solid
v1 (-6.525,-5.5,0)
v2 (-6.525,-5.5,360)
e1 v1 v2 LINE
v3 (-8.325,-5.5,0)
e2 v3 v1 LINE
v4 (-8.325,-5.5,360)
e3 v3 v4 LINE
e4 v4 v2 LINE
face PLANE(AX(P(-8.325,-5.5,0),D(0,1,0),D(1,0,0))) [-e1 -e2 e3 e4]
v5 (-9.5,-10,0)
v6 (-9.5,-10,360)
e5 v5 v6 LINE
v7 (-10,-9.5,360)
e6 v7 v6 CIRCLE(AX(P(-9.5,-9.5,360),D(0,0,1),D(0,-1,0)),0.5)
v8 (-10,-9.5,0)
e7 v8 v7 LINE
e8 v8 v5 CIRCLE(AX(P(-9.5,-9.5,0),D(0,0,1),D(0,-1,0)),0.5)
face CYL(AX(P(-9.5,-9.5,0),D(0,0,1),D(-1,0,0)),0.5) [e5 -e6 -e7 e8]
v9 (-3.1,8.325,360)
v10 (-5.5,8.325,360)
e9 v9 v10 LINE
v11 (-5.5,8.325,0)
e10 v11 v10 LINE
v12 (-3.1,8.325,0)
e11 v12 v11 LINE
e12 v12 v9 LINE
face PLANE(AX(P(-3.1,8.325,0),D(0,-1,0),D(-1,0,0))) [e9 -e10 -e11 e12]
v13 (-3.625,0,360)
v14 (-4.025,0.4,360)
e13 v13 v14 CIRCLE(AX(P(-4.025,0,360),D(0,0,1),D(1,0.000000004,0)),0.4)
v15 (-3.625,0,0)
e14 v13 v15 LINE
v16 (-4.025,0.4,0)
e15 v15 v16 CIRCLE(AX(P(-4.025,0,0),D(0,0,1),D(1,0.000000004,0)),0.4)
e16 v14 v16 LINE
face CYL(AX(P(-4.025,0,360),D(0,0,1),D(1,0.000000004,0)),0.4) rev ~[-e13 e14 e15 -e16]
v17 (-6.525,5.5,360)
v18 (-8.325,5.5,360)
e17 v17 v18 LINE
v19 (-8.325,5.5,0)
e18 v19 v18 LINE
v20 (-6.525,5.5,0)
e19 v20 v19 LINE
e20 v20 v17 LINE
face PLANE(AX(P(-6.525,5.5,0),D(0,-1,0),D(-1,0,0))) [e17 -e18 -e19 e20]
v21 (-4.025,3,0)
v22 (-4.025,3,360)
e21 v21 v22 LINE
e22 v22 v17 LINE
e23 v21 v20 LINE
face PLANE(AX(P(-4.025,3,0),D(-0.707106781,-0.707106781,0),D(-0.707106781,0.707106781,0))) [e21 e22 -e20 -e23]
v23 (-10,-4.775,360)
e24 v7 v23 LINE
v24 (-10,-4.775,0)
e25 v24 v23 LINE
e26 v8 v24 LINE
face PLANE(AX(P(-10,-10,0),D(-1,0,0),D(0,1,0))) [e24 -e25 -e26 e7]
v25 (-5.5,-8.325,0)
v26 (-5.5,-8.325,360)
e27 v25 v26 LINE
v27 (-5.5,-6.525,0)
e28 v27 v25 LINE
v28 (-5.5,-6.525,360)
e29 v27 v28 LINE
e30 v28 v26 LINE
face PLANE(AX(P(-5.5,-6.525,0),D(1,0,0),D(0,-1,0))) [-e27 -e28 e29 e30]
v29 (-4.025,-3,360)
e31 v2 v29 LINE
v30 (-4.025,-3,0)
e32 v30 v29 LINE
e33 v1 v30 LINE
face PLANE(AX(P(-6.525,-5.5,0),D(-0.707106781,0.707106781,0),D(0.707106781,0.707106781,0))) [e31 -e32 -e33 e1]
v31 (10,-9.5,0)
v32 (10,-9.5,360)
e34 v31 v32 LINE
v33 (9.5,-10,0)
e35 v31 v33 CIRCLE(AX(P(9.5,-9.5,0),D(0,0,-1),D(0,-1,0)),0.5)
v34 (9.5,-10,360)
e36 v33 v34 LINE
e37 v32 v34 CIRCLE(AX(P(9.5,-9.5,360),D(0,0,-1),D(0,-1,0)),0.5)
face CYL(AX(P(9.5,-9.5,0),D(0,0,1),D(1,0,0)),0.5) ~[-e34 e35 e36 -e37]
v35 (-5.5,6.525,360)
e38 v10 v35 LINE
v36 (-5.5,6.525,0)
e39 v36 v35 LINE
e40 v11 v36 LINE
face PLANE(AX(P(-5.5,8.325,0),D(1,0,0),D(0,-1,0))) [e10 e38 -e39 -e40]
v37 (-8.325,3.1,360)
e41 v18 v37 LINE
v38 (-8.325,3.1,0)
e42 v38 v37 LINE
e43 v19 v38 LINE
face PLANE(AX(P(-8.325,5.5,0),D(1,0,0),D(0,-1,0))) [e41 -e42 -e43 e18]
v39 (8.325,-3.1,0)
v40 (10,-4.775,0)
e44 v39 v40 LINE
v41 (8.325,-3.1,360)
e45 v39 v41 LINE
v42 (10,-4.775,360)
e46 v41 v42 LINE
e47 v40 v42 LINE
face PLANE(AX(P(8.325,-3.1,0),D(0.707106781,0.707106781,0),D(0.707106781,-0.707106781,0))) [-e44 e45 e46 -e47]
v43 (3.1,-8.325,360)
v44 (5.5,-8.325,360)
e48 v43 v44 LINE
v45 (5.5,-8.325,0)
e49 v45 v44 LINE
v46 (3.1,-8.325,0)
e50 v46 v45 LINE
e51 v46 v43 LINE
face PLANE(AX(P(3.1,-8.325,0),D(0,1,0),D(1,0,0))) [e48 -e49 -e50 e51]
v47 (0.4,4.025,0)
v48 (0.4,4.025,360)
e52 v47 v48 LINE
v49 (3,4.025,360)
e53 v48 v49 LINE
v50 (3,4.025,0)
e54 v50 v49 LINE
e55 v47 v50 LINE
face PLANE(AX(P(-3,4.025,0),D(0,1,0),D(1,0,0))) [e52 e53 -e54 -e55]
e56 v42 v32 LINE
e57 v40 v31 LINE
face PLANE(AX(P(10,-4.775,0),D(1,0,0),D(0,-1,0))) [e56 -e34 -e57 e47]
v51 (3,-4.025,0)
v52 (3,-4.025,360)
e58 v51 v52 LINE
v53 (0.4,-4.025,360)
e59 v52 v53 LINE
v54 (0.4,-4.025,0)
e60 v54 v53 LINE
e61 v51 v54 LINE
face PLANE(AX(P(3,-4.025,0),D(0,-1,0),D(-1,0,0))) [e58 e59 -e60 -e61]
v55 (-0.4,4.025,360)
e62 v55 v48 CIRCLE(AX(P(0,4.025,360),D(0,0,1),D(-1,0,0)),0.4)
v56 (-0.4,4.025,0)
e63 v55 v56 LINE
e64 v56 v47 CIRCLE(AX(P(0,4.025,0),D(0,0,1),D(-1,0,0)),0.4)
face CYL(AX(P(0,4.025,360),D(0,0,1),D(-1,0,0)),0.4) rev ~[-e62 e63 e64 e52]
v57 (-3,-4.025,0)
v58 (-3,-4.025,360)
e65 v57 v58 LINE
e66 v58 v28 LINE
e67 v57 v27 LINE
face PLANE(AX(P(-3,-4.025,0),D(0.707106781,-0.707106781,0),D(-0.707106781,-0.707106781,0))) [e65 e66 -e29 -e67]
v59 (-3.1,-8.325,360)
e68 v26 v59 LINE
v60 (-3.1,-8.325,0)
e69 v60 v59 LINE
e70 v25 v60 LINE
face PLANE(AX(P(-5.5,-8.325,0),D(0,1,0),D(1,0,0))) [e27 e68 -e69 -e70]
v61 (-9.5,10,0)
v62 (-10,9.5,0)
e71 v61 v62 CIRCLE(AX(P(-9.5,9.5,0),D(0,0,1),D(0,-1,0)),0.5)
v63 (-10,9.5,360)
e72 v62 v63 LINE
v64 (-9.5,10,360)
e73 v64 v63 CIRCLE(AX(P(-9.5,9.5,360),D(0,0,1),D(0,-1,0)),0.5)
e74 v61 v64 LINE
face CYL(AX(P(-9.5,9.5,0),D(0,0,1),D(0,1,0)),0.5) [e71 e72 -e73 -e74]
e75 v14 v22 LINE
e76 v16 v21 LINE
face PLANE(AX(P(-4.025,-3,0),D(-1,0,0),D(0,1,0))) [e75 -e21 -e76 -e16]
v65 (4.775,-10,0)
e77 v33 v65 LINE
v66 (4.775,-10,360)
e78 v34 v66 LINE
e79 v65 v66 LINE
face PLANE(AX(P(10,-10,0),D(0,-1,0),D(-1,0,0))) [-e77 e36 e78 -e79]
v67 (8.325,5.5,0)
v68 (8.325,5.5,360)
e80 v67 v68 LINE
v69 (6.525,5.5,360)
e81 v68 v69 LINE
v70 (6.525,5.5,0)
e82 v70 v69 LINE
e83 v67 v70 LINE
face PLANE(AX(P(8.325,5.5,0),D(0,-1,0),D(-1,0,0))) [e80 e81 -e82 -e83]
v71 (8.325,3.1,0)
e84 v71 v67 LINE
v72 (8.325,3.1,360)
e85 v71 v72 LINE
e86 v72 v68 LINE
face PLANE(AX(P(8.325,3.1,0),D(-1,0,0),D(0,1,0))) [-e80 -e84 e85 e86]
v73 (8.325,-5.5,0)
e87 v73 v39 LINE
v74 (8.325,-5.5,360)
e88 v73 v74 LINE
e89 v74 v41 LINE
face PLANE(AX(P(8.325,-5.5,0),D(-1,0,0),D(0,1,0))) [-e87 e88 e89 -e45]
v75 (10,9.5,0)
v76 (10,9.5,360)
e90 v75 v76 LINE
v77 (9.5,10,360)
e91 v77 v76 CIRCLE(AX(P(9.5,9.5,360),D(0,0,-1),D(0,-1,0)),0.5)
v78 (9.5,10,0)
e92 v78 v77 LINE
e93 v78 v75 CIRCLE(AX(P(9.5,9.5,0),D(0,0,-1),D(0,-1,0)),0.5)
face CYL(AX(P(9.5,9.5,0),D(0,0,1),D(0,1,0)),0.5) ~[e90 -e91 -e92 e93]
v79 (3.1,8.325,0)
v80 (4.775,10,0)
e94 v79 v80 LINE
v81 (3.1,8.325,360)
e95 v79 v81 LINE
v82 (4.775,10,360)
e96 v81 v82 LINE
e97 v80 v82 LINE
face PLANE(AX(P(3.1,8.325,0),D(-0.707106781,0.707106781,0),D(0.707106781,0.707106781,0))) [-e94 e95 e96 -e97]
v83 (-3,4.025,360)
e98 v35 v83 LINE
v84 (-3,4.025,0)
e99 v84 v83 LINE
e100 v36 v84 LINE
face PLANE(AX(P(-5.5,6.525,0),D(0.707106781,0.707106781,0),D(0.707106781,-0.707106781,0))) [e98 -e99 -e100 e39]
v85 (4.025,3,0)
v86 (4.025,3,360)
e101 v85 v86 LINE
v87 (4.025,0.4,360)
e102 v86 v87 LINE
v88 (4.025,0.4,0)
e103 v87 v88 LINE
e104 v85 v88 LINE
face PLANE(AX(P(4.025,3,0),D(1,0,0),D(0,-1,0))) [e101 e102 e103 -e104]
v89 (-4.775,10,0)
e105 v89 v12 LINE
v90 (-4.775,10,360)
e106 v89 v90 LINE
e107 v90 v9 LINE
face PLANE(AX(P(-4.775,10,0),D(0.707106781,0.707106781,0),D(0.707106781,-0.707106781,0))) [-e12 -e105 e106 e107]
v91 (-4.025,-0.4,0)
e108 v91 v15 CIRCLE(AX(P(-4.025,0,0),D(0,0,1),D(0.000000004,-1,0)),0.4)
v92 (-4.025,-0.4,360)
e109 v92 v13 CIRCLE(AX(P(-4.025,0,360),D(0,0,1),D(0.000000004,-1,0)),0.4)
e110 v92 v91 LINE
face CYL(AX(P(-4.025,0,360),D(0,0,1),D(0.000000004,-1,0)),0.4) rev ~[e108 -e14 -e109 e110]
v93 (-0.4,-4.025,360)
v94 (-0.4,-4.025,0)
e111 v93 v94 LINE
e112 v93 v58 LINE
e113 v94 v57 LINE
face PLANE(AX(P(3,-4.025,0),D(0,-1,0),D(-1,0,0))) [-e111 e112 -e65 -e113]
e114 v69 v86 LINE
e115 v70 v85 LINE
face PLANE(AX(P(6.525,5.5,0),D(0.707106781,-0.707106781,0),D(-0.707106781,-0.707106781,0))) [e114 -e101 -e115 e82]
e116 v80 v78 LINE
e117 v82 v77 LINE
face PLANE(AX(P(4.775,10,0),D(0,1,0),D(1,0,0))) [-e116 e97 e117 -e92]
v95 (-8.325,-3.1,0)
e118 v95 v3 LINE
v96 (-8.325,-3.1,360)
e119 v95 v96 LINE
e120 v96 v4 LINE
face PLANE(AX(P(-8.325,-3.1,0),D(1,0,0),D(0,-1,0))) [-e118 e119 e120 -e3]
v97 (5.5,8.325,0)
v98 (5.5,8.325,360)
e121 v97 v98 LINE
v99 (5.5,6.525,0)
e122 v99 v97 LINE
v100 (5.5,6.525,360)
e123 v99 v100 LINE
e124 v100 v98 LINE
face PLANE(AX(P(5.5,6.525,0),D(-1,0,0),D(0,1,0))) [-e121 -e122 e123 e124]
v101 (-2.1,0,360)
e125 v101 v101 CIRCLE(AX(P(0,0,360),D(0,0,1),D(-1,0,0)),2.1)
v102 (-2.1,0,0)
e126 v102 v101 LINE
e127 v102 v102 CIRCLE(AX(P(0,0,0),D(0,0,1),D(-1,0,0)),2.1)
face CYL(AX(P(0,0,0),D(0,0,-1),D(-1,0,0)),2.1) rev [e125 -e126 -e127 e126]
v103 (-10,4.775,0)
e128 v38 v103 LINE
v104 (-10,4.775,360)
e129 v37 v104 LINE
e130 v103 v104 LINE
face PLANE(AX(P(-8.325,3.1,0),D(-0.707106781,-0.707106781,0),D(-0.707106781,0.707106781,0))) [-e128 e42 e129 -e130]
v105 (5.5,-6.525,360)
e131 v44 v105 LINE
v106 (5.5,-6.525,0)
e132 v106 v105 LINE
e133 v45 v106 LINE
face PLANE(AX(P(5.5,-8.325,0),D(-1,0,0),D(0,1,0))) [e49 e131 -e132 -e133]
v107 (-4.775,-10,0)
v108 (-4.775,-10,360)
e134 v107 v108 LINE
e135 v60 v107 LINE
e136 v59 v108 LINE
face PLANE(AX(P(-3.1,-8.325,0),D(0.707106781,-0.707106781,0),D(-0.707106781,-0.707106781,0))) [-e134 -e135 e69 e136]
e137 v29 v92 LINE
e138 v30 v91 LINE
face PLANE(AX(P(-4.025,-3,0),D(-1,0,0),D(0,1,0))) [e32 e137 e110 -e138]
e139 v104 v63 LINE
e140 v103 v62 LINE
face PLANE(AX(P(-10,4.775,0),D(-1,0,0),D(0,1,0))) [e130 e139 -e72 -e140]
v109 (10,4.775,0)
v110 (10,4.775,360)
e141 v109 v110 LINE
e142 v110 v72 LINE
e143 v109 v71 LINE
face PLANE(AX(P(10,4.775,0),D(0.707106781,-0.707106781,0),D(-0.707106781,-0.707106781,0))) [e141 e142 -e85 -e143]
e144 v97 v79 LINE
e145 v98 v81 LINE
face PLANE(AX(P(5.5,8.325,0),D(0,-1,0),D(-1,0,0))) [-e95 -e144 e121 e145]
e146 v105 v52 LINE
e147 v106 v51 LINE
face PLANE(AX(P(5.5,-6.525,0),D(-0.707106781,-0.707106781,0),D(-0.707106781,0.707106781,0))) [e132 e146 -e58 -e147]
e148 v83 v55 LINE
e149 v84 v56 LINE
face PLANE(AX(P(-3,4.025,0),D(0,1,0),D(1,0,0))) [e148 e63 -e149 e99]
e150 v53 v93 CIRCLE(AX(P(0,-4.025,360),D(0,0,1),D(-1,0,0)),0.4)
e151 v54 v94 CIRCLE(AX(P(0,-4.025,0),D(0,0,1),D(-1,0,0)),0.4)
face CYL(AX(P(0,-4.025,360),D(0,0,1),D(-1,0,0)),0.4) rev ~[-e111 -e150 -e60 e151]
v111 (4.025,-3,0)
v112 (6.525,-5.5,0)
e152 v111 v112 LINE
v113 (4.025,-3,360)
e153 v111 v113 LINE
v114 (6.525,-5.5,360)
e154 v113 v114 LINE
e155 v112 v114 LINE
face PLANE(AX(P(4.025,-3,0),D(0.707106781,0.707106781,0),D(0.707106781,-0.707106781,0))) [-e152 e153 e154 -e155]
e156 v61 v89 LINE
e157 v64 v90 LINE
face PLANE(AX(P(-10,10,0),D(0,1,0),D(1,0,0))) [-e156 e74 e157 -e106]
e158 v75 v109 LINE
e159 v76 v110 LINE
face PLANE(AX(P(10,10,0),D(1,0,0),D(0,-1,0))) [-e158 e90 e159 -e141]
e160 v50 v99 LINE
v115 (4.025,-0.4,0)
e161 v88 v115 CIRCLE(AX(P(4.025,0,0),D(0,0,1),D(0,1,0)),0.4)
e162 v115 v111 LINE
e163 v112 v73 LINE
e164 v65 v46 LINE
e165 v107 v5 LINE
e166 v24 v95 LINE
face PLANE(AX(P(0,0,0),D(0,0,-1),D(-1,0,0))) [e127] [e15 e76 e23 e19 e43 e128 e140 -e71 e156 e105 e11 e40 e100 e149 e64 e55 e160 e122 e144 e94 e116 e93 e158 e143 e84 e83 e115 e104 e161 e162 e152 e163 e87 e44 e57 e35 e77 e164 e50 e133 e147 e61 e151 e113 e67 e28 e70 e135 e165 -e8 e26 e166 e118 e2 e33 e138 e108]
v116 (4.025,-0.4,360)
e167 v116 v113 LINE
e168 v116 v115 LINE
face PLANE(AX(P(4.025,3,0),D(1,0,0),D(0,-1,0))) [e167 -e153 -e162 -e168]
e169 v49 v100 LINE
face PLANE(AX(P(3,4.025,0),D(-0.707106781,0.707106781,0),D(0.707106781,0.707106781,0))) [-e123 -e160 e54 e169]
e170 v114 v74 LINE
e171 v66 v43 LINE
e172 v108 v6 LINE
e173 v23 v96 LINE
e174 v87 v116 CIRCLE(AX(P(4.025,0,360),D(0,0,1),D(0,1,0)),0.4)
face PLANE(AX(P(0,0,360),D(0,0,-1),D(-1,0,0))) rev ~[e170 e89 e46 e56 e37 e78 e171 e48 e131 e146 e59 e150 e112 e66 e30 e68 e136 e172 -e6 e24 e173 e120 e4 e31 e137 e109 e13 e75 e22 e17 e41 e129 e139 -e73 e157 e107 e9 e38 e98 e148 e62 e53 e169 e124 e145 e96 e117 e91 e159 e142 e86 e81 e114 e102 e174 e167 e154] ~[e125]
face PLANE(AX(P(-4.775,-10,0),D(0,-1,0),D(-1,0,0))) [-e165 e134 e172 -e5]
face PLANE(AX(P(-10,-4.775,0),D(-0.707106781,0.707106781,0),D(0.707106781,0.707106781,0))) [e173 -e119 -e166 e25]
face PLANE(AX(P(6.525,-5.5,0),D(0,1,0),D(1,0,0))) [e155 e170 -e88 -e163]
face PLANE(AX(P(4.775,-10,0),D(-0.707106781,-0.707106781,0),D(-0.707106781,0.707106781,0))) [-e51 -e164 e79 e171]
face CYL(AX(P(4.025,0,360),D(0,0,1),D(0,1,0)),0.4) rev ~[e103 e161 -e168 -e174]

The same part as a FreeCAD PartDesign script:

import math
import FreeCAD as App
import Part
import Sketcher


def edges_at(feature, points):
    """Names of the edges that pass closest to the given points."""
    edges = feature.Shape.Edges
    near = lambda p: min(range(len(edges)), key=lambda i: edges[i].distToShape(Part.Vertex(*p))[0])
    return sorted({f"Edge{near(p) + 1}" for p in points})


def add_polygon(sketch, points):
    """Adds a closed chain of lines whose ends are joined by coincident constraints."""
    first, n = sketch.GeometryCount, len(points)
    for a, b in zip(points, points[1:] + points[:1]):
        sketch.addGeometry(Part.LineSegment(App.Vector(*a, 0), App.Vector(*b, 0)), False)
    for i in range(n):
        sketch.addConstraint(Sketcher.Constraint("Coincident", first + i, 2, first + (i + 1) % n, 1))

doc = App.newDocument("Part")
body = doc.addObject("PartDesign::Body", "Body")

sketch1 = body.newObject("Sketcher::SketchObject", "Sketch")
sketch1.AttachmentSupport = (doc.getObject("XY_Plane"), [""])
sketch1.MapMode = "FlatFace"
add_polygon(sketch1, [(-4.8, 10), (-10, 10), (-10, 4.8), (-8.3, 3.1), (-8.3, 5.5), (-6.5, 5.5), (-4, 3), (-4, -3), (-6.5, -5.5), (-8.3, -5.5), (-8.3, -3.1), (-10, -4.8), (-10, -10), (-4.8, -10), (-3.1, -8.3), (-5.5, -8.3), (-5.5, -6.5), (-3, -4), (3, -4), (5.5, -6.5), (5.5, -8.3), (3.1, -8.3), (4.8, -10), (10, -10), (10, -4.8), (8.3, -3.1), (8.3, -5.5), (6.5, -5.5), (4, -3), (4, 3), (6.5, 5.5), (8.3, 5.5), (8.3, 3.1), (10, 4.8), (10, 10), (4.8, 10), (3.1, 8.3), (5.5, 8.3), (5.5, 6.5), (3, 4), (-3, 4), (-5.5, 6.5), (-5.5, 8.3), (-3.1, 8.3)])
sketch1.addGeometry(Part.Circle(App.Vector(0, 0, 0), App.Vector(0, 0, 1), 2.1), False)
sketch1.addConstraint([
    Sketcher.Constraint("Horizontal", 0),
    Sketcher.Constraint("Vertical", 1),
    Sketcher.Constraint("Vertical", 3),
    Sketcher.Constraint("Horizontal", 4),
    Sketcher.Constraint("Vertical", 6),
    Sketcher.Constraint("Horizontal", 8),
    Sketcher.Constraint("Vertical", 9),
    Sketcher.Constraint("Vertical", 11),
    Sketcher.Constraint("Horizontal", 12),
    Sketcher.Constraint("Horizontal", 14),
    Sketcher.Constraint("Vertical", 15),
    Sketcher.Constraint("Horizontal", 17),
    Sketcher.Constraint("Vertical", 19),
    Sketcher.Constraint("Horizontal", 20),
    Sketcher.Constraint("Horizontal", 22),
    Sketcher.Constraint("Vertical", 23),
    Sketcher.Constraint("Vertical", 25),
    Sketcher.Constraint("Horizontal", 26),
    Sketcher.Constraint("Vertical", 28),
    Sketcher.Constraint("Horizontal", 30),
    Sketcher.Constraint("Vertical", 31),
    Sketcher.Constraint("Vertical", 33),
    Sketcher.Constraint("Horizontal", 34),
    Sketcher.Constraint("Horizontal", 36),
    Sketcher.Constraint("Vertical", 37),
    Sketcher.Constraint("Horizontal", 39),
    Sketcher.Constraint("Vertical", 41),
    Sketcher.Constraint("Horizontal", 42),
    Sketcher.Constraint("Coincident", 44, 3, -1, 1),
    Sketcher.Constraint("Symmetric", 0, 2, 22, 2, -1, 1),
    Sketcher.Constraint("Symmetric", 2, 2, 24, 2, -1, 1),
    Sketcher.Constraint("Symmetric", 4, 2, 26, 2, -1, 1),
    Sketcher.Constraint("Symmetric", 5, 2, 27, 2, -1, 1),
    Sketcher.Constraint("Symmetric", 7, 2, 29, 2, -1, 1),
    Sketcher.Constraint("Symmetric", 9, 2, 31, 2, -1, 1),
    Sketcher.Constraint("Symmetric", 10, 2, 32, 2, -1, 1),
    Sketcher.Constraint("Symmetric", 12, 2, 34, 2, -1, 1),
    Sketcher.Constraint("Symmetric", 13, 2, 35, 2, -1, 1),
    Sketcher.Constraint("Symmetric", 15, 2, 37, 2, -1, 1),
    Sketcher.Constraint("Symmetric", 16, 2, 38, 2, -1, 1),
    Sketcher.Constraint("Symmetric", 18, 2, 40, 2, -1, 1),
    Sketcher.Constraint("Symmetric", 20, 2, 42, 2, -1, 1),
    Sketcher.Constraint("Symmetric", 15, 2, 18, 2, -2),
    Sketcher.Constraint("Symmetric", 13, 2, 20, 2, -2),
    Sketcher.Constraint("Symmetric", 12, 2, 21, 2, -2),
    Sketcher.Constraint("Symmetric", 10, 2, 23, 2, -2),
    Sketcher.Constraint("Symmetric", 9, 2, 24, 2, -2),
    Sketcher.Constraint("Symmetric", 7, 2, 26, 2, -2),
    Sketcher.Constraint("Parallel", 2, 5),
    Sketcher.Constraint("Perpendicular", 5, 7),
    Sketcher.Constraint("Parallel", 7, 10),
    Sketcher.Constraint("Parallel", 10, 13),
    Sketcher.Constraint("Parallel", 13, 16),
    Sketcher.Constraint("Perpendicular", 16, 18),
    Sketcher.Constraint("Parallel", 18, 21),
    Sketcher.Constraint("Perpendicular", 27, 29),
    Sketcher.Constraint("Perpendicular", 38, 40),
    Sketcher.Constraint("Parallel", 40, 43),
    Sketcher.Constraint("Equal", 34, 1),
    Sketcher.Constraint("Equal", 42, 3),
    Sketcher.Constraint("Equal", 39, 6),
    Sketcher.Constraint("Equal", 30, 15),
    Sketcher.Constraint("Equal", 10, 13),
    Sketcher.Constraint("Equal", 7, 16),
    Sketcher.Constraint("Diameter", 44, 4.2),
    Sketcher.Constraint("DistanceX", 17, 1, 17, 2, 6.0),
    Sketcher.Constraint("DistanceX", 4, 1, 4, 2, 1.8),
    Sketcher.Constraint("DistanceX", 14, 2, 14, 1, 2.4),
    Sketcher.Constraint("DistanceX", 0, 2, -1, 1, 10.0),
    Sketcher.Constraint("DistanceY", -1, 1, 2, 2, 3.1),
    Sketcher.Constraint("DistanceX", 0, 2, 0, 1, 5.225),
])
pad1 = body.newObject("PartDesign::Pad", "Pad")
pad1.Profile = sketch1
pad1.Length = 360
doc.recompute()

fillet = body.newObject("PartDesign::Fillet", "Fillet")
fillet.Base = (pad1, edges_at(pad1, [
    (10, -10, 180),
    (-10, -10, 180),
    (-10, 10, 180),
    (10, 10, 180),
]))
fillet.Radius = 0.5

sketch2 = body.newObject("Sketcher::SketchObject", "Sketch001")
sketch2.AttachmentSupport = (doc.getObject("XY_Plane"), [""])
sketch2.MapMode = "FlatFace"
sketch2.AttachmentOffset = App.Placement(App.Vector(0, 0, 360), App.Rotation())
sketch2.addGeometry([
    Part.ArcOfCircle(Part.Circle(App.Vector(-4.03, 0, 0), App.Vector(0, 0, 1), 0.4), math.radians(90), math.radians(270)),
    Part.ArcOfCircle(Part.Circle(App.Vector(-4.03, 0, 0), App.Vector(0, 0, 1), 0.4), math.radians(-90), math.radians(0)),
    Part.ArcOfCircle(Part.Circle(App.Vector(-4.03, 0, 0), App.Vector(0, 0, 1), 0.4), math.radians(0), math.radians(90)),
    Part.Circle(App.Vector(0, 4.03, 0), App.Vector(0, 0, 1), 0.4),
    Part.ArcOfCircle(Part.Circle(App.Vector(4.03, 0, 0), App.Vector(0, 0, 1), 0.4), math.radians(90), math.radians(270)),
    Part.ArcOfCircle(Part.Circle(App.Vector(4.02, 0, 0), App.Vector(0, 0, 1), 0.4), math.radians(-90), math.radians(0)),
    Part.ArcOfCircle(Part.Circle(App.Vector(4.02, 0, 0), App.Vector(0, 0, 1), 0.4), math.radians(0), math.radians(90)),
    Part.Circle(App.Vector(0, -4.03, 0), App.Vector(0, 0, 1), 0.4),
], False)
sketch2.addConstraint([
    Sketcher.Constraint("Tangent", 0, 2, 1, 1),
    Sketcher.Constraint("Tangent", 1, 2, 2, 1),
    Sketcher.Constraint("Tangent", 2, 2, 0, 1),
    Sketcher.Constraint("Tangent", 4, 2, 5, 1),
    Sketcher.Constraint("Tangent", 5, 2, 6, 1),
    Sketcher.Constraint("Tangent", 6, 2, 4, 1),
    Sketcher.Constraint("Equal", 2, 3),
    Sketcher.Constraint("Equal", 3, 4),
    Sketcher.Constraint("Equal", 6, 7),
    Sketcher.Constraint("Symmetric", 0, 3, 4, 3, -1, 1),
    Sketcher.Constraint("Symmetric", 3, 3, 7, 3, -1, 1),
    Sketcher.Constraint("Symmetric", 0, 2, 4, 2, -2),
    Sketcher.Constraint("PointOnObject", 3, 3, -2),
    Sketcher.Constraint("PointOnObject", 1, 2, -1),
    Sketcher.Constraint("PointOnObject", 5, 2, -1),
    Sketcher.Constraint("Vertical", 2, 3, 0, 2),
    Sketcher.Constraint("Vertical", 0, 2, 2, 2),
    Sketcher.Constraint("Vertical", 4, 2, 6, 2),
    Sketcher.Constraint("Diameter", 3, 0.8),
    Sketcher.Constraint("DistanceX", 0, 3, 4, 3, 8.05),
    Sketcher.Constraint("DistanceY", -1, 1, 3, 3, 4.025),
])
pocket1 = body.newObject("PartDesign::Pocket", "Pocket")
pocket1.Profile = sketch2
pocket1.Type = "ThroughAll"

doc.recompute()
